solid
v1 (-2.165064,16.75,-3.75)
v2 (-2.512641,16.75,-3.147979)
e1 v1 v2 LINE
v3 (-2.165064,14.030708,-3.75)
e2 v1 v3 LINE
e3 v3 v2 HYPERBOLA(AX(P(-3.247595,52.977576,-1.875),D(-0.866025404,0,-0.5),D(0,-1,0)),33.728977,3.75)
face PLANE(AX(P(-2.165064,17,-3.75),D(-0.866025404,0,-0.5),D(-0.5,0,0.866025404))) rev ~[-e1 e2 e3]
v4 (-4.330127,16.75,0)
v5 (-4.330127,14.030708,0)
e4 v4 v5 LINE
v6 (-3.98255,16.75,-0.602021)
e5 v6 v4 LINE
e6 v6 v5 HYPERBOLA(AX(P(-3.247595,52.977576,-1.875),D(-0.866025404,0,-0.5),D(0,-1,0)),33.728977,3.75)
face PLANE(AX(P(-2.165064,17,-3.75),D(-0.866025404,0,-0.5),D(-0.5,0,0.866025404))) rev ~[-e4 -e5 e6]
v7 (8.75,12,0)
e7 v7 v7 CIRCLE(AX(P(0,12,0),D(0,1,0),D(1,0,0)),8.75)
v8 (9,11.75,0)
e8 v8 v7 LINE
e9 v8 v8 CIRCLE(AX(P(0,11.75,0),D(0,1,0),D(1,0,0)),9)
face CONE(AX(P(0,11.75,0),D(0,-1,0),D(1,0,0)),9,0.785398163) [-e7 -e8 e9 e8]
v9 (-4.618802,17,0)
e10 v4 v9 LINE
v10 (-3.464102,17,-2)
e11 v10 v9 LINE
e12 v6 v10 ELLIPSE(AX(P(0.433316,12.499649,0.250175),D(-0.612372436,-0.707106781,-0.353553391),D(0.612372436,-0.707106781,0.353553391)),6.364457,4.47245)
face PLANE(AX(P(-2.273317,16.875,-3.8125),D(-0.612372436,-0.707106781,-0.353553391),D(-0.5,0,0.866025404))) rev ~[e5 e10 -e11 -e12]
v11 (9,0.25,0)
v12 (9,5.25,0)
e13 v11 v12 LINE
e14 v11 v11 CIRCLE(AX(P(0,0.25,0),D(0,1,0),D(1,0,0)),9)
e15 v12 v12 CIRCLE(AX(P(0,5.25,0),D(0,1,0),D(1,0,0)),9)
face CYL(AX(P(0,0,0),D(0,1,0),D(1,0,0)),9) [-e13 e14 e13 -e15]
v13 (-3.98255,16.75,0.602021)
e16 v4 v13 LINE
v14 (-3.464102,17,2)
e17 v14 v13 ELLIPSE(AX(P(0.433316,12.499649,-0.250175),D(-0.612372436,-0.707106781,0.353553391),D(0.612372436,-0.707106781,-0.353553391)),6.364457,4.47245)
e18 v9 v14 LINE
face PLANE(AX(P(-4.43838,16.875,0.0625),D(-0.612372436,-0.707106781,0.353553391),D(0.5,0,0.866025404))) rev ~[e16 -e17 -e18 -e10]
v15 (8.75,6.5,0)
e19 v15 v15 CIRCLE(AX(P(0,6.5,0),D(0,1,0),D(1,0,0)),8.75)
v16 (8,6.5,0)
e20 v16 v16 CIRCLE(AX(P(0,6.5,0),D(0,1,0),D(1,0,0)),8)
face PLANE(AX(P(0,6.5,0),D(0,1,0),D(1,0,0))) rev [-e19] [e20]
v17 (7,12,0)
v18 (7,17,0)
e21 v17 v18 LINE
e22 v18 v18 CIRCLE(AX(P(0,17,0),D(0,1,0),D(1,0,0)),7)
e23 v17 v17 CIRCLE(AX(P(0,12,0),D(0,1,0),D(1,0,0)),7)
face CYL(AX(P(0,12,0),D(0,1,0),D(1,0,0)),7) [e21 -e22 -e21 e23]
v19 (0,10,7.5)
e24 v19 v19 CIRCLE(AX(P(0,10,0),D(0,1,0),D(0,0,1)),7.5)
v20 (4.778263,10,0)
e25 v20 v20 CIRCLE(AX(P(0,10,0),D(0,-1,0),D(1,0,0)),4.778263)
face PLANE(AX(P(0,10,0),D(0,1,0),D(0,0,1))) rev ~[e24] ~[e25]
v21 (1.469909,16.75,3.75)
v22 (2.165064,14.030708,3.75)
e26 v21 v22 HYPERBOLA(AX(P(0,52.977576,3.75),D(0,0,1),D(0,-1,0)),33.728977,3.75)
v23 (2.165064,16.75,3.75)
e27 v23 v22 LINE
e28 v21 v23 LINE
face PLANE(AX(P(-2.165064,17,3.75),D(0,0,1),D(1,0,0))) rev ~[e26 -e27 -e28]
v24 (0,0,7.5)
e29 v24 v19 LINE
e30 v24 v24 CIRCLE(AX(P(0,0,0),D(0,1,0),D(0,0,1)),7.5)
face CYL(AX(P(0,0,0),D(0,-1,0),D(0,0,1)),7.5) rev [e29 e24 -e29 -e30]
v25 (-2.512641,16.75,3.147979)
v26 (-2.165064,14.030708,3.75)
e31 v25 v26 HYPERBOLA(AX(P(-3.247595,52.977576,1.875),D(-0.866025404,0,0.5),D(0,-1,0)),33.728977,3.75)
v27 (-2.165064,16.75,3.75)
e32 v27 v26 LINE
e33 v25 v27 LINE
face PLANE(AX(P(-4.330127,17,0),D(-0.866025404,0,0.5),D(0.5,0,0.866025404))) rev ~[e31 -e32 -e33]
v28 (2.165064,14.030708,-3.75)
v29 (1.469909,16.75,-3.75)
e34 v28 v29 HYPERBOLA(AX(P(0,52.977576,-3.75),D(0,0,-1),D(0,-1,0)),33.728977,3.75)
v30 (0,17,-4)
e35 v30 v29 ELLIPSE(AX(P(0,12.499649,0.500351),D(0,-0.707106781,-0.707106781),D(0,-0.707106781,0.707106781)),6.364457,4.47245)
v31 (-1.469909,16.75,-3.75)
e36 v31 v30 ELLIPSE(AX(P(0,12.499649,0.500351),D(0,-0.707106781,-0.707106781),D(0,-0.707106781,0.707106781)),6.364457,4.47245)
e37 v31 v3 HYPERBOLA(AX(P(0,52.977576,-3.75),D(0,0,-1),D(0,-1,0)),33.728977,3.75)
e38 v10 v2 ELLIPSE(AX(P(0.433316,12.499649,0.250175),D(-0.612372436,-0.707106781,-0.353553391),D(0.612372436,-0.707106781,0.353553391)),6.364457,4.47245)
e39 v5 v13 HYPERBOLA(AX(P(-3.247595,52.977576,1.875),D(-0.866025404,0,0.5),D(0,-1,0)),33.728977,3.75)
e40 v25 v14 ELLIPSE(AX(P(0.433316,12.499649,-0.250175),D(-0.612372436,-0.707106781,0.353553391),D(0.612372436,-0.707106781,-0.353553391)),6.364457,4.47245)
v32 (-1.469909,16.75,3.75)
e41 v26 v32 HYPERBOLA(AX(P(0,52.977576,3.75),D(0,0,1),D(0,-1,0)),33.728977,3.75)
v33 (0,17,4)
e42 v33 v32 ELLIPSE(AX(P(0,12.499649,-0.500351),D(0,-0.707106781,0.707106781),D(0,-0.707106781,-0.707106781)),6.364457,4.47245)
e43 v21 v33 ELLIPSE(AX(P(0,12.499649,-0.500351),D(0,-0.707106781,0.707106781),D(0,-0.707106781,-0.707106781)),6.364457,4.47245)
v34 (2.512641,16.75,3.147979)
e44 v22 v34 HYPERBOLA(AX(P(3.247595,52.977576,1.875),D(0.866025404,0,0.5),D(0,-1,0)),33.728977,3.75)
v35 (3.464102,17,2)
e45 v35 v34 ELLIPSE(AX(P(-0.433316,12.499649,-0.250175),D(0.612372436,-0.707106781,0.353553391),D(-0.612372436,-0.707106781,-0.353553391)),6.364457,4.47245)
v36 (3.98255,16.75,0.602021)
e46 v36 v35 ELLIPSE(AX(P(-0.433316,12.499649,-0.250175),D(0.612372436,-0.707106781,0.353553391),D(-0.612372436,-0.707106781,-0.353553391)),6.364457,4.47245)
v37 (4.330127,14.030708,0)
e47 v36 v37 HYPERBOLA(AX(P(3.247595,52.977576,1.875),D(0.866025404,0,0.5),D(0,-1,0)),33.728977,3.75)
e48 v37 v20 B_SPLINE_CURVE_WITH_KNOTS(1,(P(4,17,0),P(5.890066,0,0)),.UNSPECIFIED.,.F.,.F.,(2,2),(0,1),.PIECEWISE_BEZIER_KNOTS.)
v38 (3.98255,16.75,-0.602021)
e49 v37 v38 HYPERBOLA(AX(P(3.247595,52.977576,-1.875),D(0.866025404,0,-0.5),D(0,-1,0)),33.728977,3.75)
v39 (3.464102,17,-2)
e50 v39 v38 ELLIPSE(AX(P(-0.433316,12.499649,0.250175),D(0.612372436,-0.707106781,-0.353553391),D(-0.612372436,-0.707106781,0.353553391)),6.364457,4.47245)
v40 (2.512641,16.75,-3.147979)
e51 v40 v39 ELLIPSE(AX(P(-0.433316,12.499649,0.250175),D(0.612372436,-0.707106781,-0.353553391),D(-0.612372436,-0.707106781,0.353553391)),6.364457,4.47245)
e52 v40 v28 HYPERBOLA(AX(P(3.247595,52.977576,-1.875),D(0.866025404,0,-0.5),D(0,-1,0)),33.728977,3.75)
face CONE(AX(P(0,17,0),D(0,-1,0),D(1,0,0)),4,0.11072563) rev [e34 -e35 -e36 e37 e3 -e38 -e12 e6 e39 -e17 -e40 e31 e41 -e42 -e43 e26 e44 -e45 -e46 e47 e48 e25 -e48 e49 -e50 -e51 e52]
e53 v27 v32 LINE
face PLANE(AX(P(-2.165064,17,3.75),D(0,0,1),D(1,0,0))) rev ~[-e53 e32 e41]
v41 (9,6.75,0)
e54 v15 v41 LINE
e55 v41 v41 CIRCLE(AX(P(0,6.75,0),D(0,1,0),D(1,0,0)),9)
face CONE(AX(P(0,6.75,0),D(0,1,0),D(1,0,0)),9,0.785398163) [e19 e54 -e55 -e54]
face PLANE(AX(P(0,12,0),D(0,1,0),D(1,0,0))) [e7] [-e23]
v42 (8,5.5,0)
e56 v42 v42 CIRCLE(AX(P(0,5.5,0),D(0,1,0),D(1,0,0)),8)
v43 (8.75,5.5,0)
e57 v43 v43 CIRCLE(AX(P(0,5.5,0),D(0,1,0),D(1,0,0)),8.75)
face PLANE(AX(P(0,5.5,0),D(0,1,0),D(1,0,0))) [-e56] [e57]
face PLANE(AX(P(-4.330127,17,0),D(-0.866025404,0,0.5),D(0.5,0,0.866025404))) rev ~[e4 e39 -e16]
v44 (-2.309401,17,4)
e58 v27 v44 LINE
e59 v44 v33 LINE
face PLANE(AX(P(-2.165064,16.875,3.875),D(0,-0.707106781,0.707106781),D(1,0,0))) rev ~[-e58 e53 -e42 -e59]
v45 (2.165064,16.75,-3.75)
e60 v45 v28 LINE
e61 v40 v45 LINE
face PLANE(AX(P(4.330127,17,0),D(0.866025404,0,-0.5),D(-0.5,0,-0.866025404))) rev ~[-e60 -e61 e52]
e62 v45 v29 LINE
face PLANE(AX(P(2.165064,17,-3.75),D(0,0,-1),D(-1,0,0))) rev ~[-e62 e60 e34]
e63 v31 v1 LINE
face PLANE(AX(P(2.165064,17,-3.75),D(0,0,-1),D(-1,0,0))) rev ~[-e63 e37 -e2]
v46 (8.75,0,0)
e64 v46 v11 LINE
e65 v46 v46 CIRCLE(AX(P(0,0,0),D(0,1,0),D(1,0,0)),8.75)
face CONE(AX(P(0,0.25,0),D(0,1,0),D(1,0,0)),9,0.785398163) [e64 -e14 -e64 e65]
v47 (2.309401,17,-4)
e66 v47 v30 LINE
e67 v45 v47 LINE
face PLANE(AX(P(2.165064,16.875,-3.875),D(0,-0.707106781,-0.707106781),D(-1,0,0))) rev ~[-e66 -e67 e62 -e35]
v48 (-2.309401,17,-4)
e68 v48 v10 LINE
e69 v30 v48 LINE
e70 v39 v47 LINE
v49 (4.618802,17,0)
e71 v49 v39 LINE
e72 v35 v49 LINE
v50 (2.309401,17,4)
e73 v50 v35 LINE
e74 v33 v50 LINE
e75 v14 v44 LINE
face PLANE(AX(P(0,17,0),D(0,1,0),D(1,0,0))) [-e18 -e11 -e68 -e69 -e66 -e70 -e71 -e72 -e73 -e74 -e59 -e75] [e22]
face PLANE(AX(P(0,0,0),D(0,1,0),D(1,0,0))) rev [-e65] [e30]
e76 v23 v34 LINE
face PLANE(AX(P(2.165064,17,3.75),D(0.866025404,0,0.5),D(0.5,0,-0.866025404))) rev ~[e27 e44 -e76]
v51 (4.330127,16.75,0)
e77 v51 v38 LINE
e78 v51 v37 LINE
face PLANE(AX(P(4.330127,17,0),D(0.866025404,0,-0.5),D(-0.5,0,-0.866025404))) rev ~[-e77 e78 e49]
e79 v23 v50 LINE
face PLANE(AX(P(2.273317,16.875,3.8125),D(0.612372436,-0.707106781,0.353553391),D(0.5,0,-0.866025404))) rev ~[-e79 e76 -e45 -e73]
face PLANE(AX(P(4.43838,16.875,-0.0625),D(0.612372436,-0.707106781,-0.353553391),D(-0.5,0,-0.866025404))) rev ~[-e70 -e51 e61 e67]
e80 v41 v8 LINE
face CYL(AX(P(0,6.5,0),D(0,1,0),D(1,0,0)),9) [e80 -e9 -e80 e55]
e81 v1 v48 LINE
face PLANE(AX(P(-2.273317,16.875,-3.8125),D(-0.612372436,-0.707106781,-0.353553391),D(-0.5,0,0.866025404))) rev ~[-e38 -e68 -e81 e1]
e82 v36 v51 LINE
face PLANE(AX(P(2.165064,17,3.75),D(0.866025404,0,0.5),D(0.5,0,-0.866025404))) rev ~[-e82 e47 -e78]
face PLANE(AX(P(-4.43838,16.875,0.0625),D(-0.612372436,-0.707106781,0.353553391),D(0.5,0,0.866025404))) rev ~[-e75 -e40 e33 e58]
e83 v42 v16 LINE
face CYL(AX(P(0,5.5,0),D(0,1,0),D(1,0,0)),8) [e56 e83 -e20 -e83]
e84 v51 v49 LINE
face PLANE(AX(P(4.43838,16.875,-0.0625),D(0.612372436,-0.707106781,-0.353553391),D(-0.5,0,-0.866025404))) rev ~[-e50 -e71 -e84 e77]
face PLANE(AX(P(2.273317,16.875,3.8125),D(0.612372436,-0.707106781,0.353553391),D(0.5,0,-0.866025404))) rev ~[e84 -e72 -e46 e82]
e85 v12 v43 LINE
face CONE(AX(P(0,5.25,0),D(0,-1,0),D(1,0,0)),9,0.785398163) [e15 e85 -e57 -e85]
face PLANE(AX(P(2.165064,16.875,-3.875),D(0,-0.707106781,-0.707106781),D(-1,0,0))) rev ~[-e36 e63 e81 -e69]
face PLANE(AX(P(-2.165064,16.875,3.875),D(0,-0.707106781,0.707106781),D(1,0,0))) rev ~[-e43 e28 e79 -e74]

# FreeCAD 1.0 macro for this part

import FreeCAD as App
import Part
import Sketcher
Q = App.Units.Quantity


def edges_at(feature, points):
    """Names of the edges that pass closest to the given points."""
    edges = feature.Shape.Edges
    near = lambda p: min(range(len(edges)), key=lambda i: edges[i].distToShape(Part.Vertex(*p))[0])
    return sorted({f"Edge{near(p) + 1}" for p in points})

doc = App.newDocument("Part")
body = doc.addObject("PartDesign::Body", "Body")

# Sketch on XY plane
sketch1 = doc.addObject("Sketcher::SketchObject", "Sketch")
body.addObject(sketch1)
sketch1.AttachmentSupport = (doc.XY_Plane, [""])
sketch1.MapMode = "FlatFace"
sketch1.addGeometry([
    Part.LineSegment(App.Vector(0, 0, 0), App.Vector(9, 0, 0)),  # 0
    Part.LineSegment(App.Vector(9, 0, 0), App.Vector(9, 5.5, 0)),  # 1
    Part.LineSegment(App.Vector(9, 5.5, 0), App.Vector(8, 5.5, 0)),  # 2
    Part.LineSegment(App.Vector(8, 5.5, 0), App.Vector(8, 6.5, 0)),  # 3
    Part.LineSegment(App.Vector(8, 6.5, 0), App.Vector(9, 6.5, 0)),  # 4
    Part.LineSegment(App.Vector(9, 6.5, 0), App.Vector(9, 12, 0)),  # 5
    Part.LineSegment(App.Vector(9, 12, 0), App.Vector(7, 12, 0)),  # 6
    Part.LineSegment(App.Vector(7, 12, 0), App.Vector(7, 17, 0)),  # 7
    Part.LineSegment(App.Vector(7, 17, 0), App.Vector(0, 17, 0)),  # 8
    Part.LineSegment(App.Vector(0, 17, 0), App.Vector(0, 0, 0)),  # 9
], False)
sketch1.addConstraint([
    Sketcher.Constraint("Coincident", 0, 2, 1, 1),
    Sketcher.Constraint("Coincident", 1, 2, 2, 1),
    Sketcher.Constraint("Coincident", 2, 2, 3, 1),
    Sketcher.Constraint("Coincident", 3, 2, 4, 1),
    Sketcher.Constraint("Coincident", 4, 2, 5, 1),
    Sketcher.Constraint("Coincident", 5, 2, 6, 1),
    Sketcher.Constraint("Coincident", 6, 2, 7, 1),
    Sketcher.Constraint("Coincident", 7, 2, 8, 1),
    Sketcher.Constraint("Coincident", 8, 2, 9, 1),
    Sketcher.Constraint("Coincident", 9, 2, 0, 1),
    Sketcher.Constraint("Horizontal", 0),
    Sketcher.Constraint("Vertical", 1),
    Sketcher.Constraint("Horizontal", 2),
    Sketcher.Constraint("Vertical", 3),
    Sketcher.Constraint("Horizontal", 4),
    Sketcher.Constraint("Vertical", 5),
    Sketcher.Constraint("Horizontal", 6),
    Sketcher.Constraint("Vertical", 7),
    Sketcher.Constraint("Horizontal", 8),
    Sketcher.Constraint("Vertical", 9),
    Sketcher.Constraint("Coincident", 9, 2, -1, 1),
    Sketcher.Constraint("Vertical", 1, 2, 4, 2),
    Sketcher.Constraint("Equal", 4, 3),
    Sketcher.Constraint("Equal", 1, 5),
    Sketcher.Constraint("DistanceX", 0, 1, 0, 2, 9.0),
    Sketcher.Constraint("DistanceX", 2, 2, 2, 1, 1.0),
    Sketcher.Constraint("DistanceX", 6, 2, 6, 1, 2.0),
    Sketcher.Constraint("DistanceY", 7, 1, 7, 2, 5.0),
    Sketcher.Constraint("DistanceY", 9, 2, 9, 1, 17.0),
])
revolution = doc.addObject("PartDesign::Revolution", "Revolution")
body.addObject(revolution)
revolution.Profile = sketch1
revolution.ReferenceAxis = (sketch1, ["V_Axis"])
revolution.Angle = 360
doc.recompute()

chamfer = doc.addObject("PartDesign::Chamfer", "Chamfer")
body.addObject(chamfer)
chamfer.Base = (revolution, edges_at(revolution, [
    (-9, 6.5, 0),
    (-9, 12, 0),
    (-9, 0, 0),
    (-9, 5.5, 0),
]))
chamfer.Size = 0.25

# Sketch on XZ plane
sketch2 = doc.addObject("Sketcher::SketchObject", "Sketch001")
body.addObject(sketch2)
sketch2.AttachmentSupport = (doc.XZ_Plane, [""])
sketch2.MapMode = "FlatFace"
sketch2.AttachmentOffset = App.Placement(App.Vector(0, 0, -17), App.Rotation())
sketch2.addGeometry([
    Part.LineSegment(App.Vector(2.2, 3.8, 0), App.Vector(4.3, 0, 0)),  # 0
    Part.LineSegment(App.Vector(4.3, 0, 0), App.Vector(2.2, -3.8, 0)),  # 1
    Part.LineSegment(App.Vector(2.2, -3.8, 0), App.Vector(-2.2, -3.8, 0)),  # 2
    Part.LineSegment(App.Vector(-2.2, -3.8, 0), App.Vector(-4.3, 0, 0)),  # 3
    Part.LineSegment(App.Vector(-4.3, 0, 0), App.Vector(-2.2, 3.8, 0)),  # 4
    Part.LineSegment(App.Vector(-2.2, 3.8, 0), App.Vector(2.2, 3.8, 0)),  # 5
], False)
sketch2.addConstraint([
    Sketcher.Constraint("Coincident", 0, 2, 1, 1),
    Sketcher.Constraint("Coincident", 1, 2, 2, 1),
    Sketcher.Constraint("Coincident", 2, 2, 3, 1),
    Sketcher.Constraint("Coincident", 3, 2, 4, 1),
    Sketcher.Constraint("Coincident", 4, 2, 5, 1),
    Sketcher.Constraint("Coincident", 5, 2, 0, 1),
    Sketcher.Constraint("Horizontal", 2),
    Sketcher.Constraint("Horizontal", 5),
    Sketcher.Constraint("Symmetric", 0, 2, 3, 2, -1, 1),
    Sketcher.Constraint("Symmetric", 1, 2, 4, 2, -1, 1),
    Sketcher.Constraint("PointOnObject", 0, 2, -1),
    Sketcher.Constraint("Parallel", 0, 3),
    Sketcher.Constraint("Vertical", 2, 2, 4, 2),
    Sketcher.Constraint("Angle", 0, Q("-60 deg")),
    Sketcher.Constraint("DistanceY", 2, 2, 4, 2, 7.5),
    Sketcher.Constraint("DistanceX", 2, 2, 2, 1, 4.330127),
])
pocket1 = doc.addObject("PartDesign::Pocket", "Pocket")
body.addObject(pocket1)
pocket1.Profile = sketch2
pocket1.Type = "ThroughAll"
pocket1.Reversed = True
doc.recompute()

chamfer2 = doc.addObject("PartDesign::Chamfer", "Chamfer001")
body.addObject(chamfer2)
chamfer2.Base = (pocket1, edges_at(pocket1, [
    (0, 17, 3.75),
    (3.248, 17, 1.875),
    (3.248, 17, -1.875),
    (0, 17, -3.75),
    (-3.248, 17, -1.875),
    (-3.248, 17, 1.875),
]))
chamfer2.Size = 0.25

# Sketch on XZ plane
sketch3 = doc.addObject("Sketcher::SketchObject", "Sketch002")
body.addObject(sketch3)
sketch3.AttachmentSupport = (doc.XZ_Plane, [""])
sketch3.MapMode = "FlatFace"
sketch3.addGeometry(Part.Circle(App.Vector(0, 0, 0), App.Vector(0, 0, 1), 8), False)
sketch3.addConstraint([
    Sketcher.Constraint("Coincident", 0, 3, -1, 1),
    Sketcher.Constraint("Diameter", 0, 15.0),
])
pocket2 = doc.addObject("PartDesign::Pocket", "Pocket001")
body.addObject(pocket2)
pocket2.Profile = sketch3
pocket2.Length = 10

# Sketch on XZ plane
sketch4 = doc.addObject("Sketcher::SketchObject", "Sketch003")
body.addObject(sketch4)
sketch4.AttachmentSupport = (doc.XZ_Plane, [""])
sketch4.MapMode = "FlatFace"
sketch4.AttachmentOffset = App.Placement(App.Vector(0, 0, -17), App.Rotation())
sketch4.addGeometry(Part.Circle(App.Vector(0, 0, 0), App.Vector(0, 0, 1), 4), False)
sketch4.addConstraint([
    Sketcher.Constraint("Coincident", 0, 3, -1, 1),
    Sketcher.Constraint("Diameter", 0, 8.0),
])

# Sketch on XZ plane
sketch5 = doc.addObject("Sketcher::SketchObject", "Sketch004")
body.addObject(sketch5)
sketch5.AttachmentSupport = (doc.XZ_Plane, [""])
sketch5.MapMode = "FlatFace"
sketch5.addGeometry(Part.Circle(App.Vector(0, 0, 0), App.Vector(0, 0, 1), 6), False)
sketch5.addConstraint([
    Sketcher.Constraint("Coincident", 0, 3, -1, 1),
    Sketcher.Constraint("Diameter", 0, 11.780132),
])

subtractiveloft = doc.addObject("PartDesign::SubtractiveLoft", "SubtractiveLoft")
body.addObject(subtractiveloft)
subtractiveloft.Profile = sketch4
subtractiveloft.Sections = [sketch5]

doc.recompute()
